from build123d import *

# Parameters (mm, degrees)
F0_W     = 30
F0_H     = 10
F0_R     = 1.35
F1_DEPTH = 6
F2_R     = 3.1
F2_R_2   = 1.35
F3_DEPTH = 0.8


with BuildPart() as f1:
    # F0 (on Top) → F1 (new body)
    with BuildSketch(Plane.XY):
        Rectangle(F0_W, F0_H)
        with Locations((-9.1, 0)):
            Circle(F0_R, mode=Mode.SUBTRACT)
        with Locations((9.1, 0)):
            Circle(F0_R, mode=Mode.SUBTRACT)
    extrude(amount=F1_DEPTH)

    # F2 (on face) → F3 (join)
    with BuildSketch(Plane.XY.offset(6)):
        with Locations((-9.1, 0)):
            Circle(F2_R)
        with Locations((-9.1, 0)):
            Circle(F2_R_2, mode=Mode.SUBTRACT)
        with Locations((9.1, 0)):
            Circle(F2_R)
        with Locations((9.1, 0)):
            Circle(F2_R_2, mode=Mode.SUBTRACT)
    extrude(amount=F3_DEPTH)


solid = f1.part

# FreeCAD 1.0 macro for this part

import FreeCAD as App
import Part
import Sketcher

doc = App.newDocument("Part")
body = doc.addObject("PartDesign::Body", "Body")

# Sketch on XY plane
sketch1 = body.newObject("Sketcher::SketchObject", "Sketch")
sketch1.AttachmentSupport = (doc.getObject("XY_Plane"), [""])
sketch1.MapMode = "FlatFace"
sketch1.addGeometry(Part.LineSegment(App.Vector(-15, 5, 0), App.Vector(-15, -5, 0)), False)
sketch1.addGeometry(Part.LineSegment(App.Vector(-15, -5, 0), App.Vector(15, -5, 0)), False)
sketch1.addGeometry(Part.LineSegment(App.Vector(15, -5, 0), App.Vector(15, 5, 0)), False)
sketch1.addGeometry(Part.LineSegment(App.Vector(15, 5, 0), App.Vector(-15, 5, 0)), False)
sketch1.addGeometry(Part.Circle(App.Vector(-9.1, 0, 0), App.Vector(0, 0, 1), 1.4), False)
sketch1.addGeometry(Part.Circle(App.Vector(9.1, 0, 0), App.Vector(0, 0, 1), 1.4), False)
sketch1.addConstraint(Sketcher.Constraint("Coincident", 0, 2, 1, 1))
sketch1.addConstraint(Sketcher.Constraint("Coincident", 1, 2, 2, 1))
sketch1.addConstraint(Sketcher.Constraint("Coincident", 2, 2, 3, 1))
sketch1.addConstraint(Sketcher.Constraint("Coincident", 3, 2, 0, 1))
sketch1.addConstraint(Sketcher.Constraint("Vertical", 0))
sketch1.addConstraint(Sketcher.Constraint("Horizontal", 1))
sketch1.addConstraint(Sketcher.Constraint("Vertical", 2))
sketch1.addConstraint(Sketcher.Constraint("Horizontal", 3))
sketch1.addConstraint(Sketcher.Constraint("Equal", 4, 5))
sketch1.addConstraint(Sketcher.Constraint("Symmetric", 4, 3, 5, 3, -1, 1))
sketch1.addConstraint(Sketcher.Constraint("Symmetric", 0, 2, 2, 2, -1, 1))
sketch1.addConstraint(Sketcher.Constraint("PointOnObject", 4, 3, -1))
sketch1.addConstraint(Sketcher.Constraint("Diameter", 4, 2.7))
sketch1.addConstraint(Sketcher.Constraint("DistanceX", 1, 1, 1, 2, 30.0))
sketch1.addConstraint(Sketcher.Constraint("DistanceY", 0, 2, 0, 1, 10.0))
sketch1.addConstraint(Sketcher.Constraint("DistanceX", 4, 3, -1, 1, 9.1))
pad1 = body.newObject("PartDesign::Pad", "Pad")
pad1.Profile = sketch1
pad1.Length = 6

# Sketch on XY plane
sketch2 = body.newObject("Sketcher::SketchObject", "Sketch001")
sketch2.AttachmentSupport = (doc.getObject("XY_Plane"), [""])
sketch2.MapMode = "FlatFace"
sketch2.AttachmentOffset = App.Placement(App.Vector(0, 0, 6), App.Rotation())
sketch2.addGeometry(Part.Circle(App.Vector(-9.1, 0, 0), App.Vector(0, 0, 1), 3.1), False)
sketch2.addGeometry(Part.Circle(App.Vector(-9.1, 0, 0), App.Vector(0, 0, 1), 1.4), False)
sketch2.addGeometry(Part.Circle(App.Vector(9.1, 0, 0), App.Vector(0, 0, 1), 3.1), False)
sketch2.addGeometry(Part.Circle(App.Vector(9.1, 0, 0), App.Vector(0, 0, 1), 1.4), False)
sketch2.addConstraint(Sketcher.Constraint("Coincident", 1, 3, 0, 3))
sketch2.addConstraint(Sketcher.Constraint("Coincident", 3, 3, 2, 3))
sketch2.addConstraint(Sketcher.Constraint("Equal", 0, 2))
sketch2.addConstraint(Sketcher.Constraint("Equal", 1, 3))
sketch2.addConstraint(Sketcher.Constraint("Symmetric", 0, 3, 2, 3, -1, 1))
sketch2.addConstraint(Sketcher.Constraint("PointOnObject", 0, 3, -1))
sketch2.addConstraint(Sketcher.Constraint("Diameter", 0, 6.2))
sketch2.addConstraint(Sketcher.Constraint("Diameter", 1, 2.7))
sketch2.addConstraint(Sketcher.Constraint("DistanceX", 0, 3, -1, 1, 9.1))
pad2 = body.newObject("PartDesign::Pad", "Pad001")
pad2.Profile = sketch2
pad2.Length = 0.8

doc.recompute()
